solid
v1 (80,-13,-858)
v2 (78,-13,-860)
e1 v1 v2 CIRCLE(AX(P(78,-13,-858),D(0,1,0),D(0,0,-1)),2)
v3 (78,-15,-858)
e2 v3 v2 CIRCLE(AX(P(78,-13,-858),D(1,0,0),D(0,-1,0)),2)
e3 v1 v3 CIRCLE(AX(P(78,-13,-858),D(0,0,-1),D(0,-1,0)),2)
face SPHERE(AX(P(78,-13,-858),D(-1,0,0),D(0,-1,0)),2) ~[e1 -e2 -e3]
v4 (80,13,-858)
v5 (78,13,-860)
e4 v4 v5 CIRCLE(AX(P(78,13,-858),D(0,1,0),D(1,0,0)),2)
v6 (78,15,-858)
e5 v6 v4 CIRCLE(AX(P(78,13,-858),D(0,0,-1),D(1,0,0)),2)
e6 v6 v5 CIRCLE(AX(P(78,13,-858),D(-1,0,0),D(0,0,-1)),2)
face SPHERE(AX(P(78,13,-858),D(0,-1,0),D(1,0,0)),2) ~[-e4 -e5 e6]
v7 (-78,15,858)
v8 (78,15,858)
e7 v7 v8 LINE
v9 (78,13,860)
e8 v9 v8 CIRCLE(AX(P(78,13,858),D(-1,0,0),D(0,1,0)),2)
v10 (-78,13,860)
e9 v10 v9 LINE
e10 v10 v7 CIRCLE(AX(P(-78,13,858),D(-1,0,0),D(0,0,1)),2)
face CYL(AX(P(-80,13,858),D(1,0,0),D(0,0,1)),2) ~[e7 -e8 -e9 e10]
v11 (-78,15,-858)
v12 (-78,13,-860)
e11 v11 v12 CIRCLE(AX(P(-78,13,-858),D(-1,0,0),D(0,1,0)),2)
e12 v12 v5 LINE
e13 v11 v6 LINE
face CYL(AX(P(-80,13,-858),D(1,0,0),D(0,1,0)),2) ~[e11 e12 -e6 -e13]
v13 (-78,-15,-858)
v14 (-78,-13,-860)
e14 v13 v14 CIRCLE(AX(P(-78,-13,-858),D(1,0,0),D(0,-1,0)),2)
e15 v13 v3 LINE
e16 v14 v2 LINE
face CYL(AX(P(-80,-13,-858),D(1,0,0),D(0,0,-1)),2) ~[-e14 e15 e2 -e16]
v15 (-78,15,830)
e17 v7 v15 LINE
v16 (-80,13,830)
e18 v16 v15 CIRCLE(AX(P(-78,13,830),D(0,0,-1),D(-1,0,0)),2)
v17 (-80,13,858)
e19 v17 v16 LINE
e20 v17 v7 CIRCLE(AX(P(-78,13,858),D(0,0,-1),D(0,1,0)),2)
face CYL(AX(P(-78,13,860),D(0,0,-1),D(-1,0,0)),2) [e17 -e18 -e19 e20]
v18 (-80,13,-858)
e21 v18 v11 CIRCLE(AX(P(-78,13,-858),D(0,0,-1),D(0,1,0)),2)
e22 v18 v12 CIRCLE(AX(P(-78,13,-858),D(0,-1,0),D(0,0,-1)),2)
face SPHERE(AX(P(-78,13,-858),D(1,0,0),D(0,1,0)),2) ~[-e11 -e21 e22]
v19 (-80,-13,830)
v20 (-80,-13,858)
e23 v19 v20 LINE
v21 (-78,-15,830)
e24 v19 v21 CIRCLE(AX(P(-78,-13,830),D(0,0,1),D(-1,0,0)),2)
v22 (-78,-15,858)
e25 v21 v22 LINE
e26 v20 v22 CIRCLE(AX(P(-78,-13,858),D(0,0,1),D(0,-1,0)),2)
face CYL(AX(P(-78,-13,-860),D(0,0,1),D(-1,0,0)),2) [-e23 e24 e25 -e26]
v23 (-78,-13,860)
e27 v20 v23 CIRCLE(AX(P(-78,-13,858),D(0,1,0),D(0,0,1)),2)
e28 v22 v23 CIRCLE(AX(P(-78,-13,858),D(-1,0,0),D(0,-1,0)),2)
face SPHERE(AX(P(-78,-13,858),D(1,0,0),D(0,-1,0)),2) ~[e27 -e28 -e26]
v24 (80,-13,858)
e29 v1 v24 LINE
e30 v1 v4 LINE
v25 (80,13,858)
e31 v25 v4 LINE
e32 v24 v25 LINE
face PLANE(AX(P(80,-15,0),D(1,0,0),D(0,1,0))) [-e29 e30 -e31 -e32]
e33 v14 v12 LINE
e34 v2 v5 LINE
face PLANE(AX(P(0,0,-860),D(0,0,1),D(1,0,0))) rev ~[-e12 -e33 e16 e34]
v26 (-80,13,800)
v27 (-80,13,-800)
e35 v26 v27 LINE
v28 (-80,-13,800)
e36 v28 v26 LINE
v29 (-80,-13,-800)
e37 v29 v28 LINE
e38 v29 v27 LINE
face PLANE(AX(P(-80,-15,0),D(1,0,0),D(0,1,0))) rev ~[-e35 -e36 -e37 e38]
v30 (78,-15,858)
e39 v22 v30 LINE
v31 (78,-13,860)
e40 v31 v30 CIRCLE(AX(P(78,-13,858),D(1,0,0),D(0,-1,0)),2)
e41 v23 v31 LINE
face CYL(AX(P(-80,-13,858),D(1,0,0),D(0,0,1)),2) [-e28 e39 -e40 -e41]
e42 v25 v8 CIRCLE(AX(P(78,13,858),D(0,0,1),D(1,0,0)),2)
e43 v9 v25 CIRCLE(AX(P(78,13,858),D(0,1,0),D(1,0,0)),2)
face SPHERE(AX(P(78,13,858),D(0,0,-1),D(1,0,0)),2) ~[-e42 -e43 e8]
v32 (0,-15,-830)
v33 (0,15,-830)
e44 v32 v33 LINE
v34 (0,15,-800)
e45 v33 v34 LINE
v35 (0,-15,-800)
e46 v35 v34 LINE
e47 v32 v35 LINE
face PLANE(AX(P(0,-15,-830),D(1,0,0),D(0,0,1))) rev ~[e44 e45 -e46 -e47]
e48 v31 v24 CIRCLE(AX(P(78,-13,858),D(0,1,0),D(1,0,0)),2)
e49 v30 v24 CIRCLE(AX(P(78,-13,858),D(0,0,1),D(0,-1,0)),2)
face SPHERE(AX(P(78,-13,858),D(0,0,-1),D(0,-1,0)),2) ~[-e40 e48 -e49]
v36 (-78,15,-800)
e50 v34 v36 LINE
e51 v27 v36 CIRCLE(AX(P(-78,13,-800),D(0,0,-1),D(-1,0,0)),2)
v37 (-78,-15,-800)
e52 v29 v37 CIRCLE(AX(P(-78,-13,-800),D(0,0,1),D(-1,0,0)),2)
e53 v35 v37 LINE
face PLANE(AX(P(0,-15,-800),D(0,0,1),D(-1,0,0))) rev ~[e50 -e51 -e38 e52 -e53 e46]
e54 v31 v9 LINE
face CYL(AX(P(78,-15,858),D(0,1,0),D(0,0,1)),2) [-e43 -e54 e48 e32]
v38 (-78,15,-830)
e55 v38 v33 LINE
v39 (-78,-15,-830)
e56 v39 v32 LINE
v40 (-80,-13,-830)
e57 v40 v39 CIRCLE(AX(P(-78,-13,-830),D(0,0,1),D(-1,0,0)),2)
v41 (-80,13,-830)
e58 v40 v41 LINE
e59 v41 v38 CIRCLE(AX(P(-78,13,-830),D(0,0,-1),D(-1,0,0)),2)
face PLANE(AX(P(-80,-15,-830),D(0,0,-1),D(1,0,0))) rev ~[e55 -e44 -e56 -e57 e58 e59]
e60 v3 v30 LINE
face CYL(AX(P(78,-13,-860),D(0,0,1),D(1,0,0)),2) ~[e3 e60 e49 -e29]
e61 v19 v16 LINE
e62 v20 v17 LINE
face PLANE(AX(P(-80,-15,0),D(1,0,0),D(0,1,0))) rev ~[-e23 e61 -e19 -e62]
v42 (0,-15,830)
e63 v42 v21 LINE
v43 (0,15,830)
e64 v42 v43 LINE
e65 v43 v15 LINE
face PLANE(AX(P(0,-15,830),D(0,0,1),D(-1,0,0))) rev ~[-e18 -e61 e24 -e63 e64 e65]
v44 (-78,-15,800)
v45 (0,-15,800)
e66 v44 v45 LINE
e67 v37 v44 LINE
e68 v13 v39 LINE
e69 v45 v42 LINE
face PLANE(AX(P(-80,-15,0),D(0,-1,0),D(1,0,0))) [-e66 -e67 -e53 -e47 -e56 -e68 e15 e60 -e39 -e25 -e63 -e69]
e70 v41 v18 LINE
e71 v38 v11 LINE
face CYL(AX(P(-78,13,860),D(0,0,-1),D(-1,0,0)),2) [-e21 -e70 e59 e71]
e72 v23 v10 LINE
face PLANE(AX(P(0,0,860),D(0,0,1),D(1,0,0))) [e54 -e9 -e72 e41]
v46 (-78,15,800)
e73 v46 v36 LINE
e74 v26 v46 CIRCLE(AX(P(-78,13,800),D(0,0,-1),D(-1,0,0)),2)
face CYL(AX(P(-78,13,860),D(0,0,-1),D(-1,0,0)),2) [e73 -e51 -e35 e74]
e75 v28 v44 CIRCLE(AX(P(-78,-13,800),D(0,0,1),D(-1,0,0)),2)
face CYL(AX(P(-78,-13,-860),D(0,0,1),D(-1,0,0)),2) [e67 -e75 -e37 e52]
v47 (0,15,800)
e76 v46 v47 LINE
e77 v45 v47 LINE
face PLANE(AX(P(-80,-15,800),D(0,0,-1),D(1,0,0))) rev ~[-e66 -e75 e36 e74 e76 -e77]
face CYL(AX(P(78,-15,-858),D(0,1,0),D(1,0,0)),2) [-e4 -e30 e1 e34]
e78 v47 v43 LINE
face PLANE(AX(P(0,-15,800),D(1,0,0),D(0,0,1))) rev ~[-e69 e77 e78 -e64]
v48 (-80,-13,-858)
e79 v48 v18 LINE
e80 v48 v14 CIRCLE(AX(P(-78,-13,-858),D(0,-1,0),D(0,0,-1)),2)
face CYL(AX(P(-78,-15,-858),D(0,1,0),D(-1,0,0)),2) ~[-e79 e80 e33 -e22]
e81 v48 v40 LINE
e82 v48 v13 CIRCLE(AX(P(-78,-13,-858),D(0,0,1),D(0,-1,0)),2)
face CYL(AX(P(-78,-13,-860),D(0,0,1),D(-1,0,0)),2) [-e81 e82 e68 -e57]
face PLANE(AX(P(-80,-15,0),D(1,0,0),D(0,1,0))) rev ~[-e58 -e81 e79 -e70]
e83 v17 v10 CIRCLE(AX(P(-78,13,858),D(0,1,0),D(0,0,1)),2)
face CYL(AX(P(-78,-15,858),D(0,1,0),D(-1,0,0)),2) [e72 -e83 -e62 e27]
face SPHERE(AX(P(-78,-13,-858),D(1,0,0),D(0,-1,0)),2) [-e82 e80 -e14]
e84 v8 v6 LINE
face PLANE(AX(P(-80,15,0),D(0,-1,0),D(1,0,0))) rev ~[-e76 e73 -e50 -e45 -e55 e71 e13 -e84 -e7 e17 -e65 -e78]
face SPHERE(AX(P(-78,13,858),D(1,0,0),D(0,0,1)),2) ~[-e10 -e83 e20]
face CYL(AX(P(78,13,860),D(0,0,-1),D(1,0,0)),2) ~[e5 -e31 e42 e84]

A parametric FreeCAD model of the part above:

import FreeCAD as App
import Part
import Sketcher
Q = App.Units.Quantity


def add_polygon(sketch, points):
    """Adds a closed chain of lines whose ends are joined by coincident constraints."""
    first, n = sketch.GeometryCount, len(points)
    for a, b in zip(points, points[1:] + points[:1]):
        sketch.addGeometry(Part.LineSegment(App.Vector(*a, 0), App.Vector(*b, 0)), False)
    for i in range(n):
        sketch.addConstraint(Sketcher.Constraint("Coincident", first + i, 2, first + (i + 1) % n, 1))

doc = App.newDocument("Part")
body = doc.addObject("PartDesign::Body", "Body")

# Sketch on XY plane
sketch1 = doc.addObject("Sketcher::SketchObject", "Sketch")
body.addObject(sketch1)
sketch1.AttachmentSupport = (doc.XY_Plane, [""])
sketch1.MapMode = "FlatFace"
add_polygon(sketch1, [(-80, 15), (-80, -15), (80, -15), (80, 15)])  # lines 0-3
sketch1.addConstraint([
    Sketcher.Constraint("Vertical", 0),
    Sketcher.Constraint("Horizontal", 1),
    Sketcher.Constraint("Vertical", 2),
    Sketcher.Constraint("Horizontal", 3),
    Sketcher.Constraint("Symmetric", 0, 2, 2, 2, -1, 1),
    Sketcher.Constraint("DistanceX", 1, 1, 1, 2, Q("160 mm")),
    Sketcher.Constraint("DistanceY", 0, 2, 0, 1, Q("30 mm")),
])
pad1 = doc.addObject("PartDesign::Pad", "Pad")
body.addObject(pad1)
pad1.Profile = sketch1
pad1.Length = 1720
pad1.Midplane = True
doc.recompute()

fillet = doc.addObject("PartDesign::Fillet", "Fillet")
body.addObject(fillet)
fillet.Base = (pad1, ["Edge1"])
fillet.UseAllEdges = True
fillet.Radius = 2

# Sketch on XZ plane
sketch2 = doc.addObject("Sketcher::SketchObject", "Sketch001")
body.addObject(sketch2)
sketch2.AttachmentSupport = (doc.XZ_Plane, [""])
sketch2.MapMode = "FlatFace"
sketch2.AttachmentOffset = App.Placement(App.Vector(0, 0, 15), App.Rotation())
add_polygon(sketch2, [(-80, -800), (-80, -830), (0, -830), (0, -800)])  # lines 0-3
add_polygon(sketch2, [(-80, 830), (-80, 800), (0, 800), (0, 830)])  # lines 4-7
sketch2.addConstraint([
    Sketcher.Constraint("Vertical", 0),
    Sketcher.Constraint("Horizontal", 1),
    Sketcher.Constraint("Vertical", 2),
    Sketcher.Constraint("Horizontal", 3),
    Sketcher.Constraint("Vertical", 4),
    Sketcher.Constraint("Horizontal", 5),
    Sketcher.Constraint("Vertical", 6),
    Sketcher.Constraint("Horizontal", 7),
    Sketcher.Constraint("Symmetric", 2, 2, 5, 2, -1, 1),
    Sketcher.Constraint("Symmetric", 1, 2, 6, 2, -1),
    Sketcher.Constraint("Vertical", 3, 2, 4, 2),
    Sketcher.Constraint("DistanceX", 1, 1, 1, 2, Q("80 mm")),
    Sketcher.Constraint("DistanceY", 0, 2, 0, 1, Q("30 mm")),
    Sketcher.Constraint("DistanceY", 0, 2, -1, 1, Q("830 mm")),
])
pocket1 = doc.addObject("PartDesign::Pocket", "Pocket")
body.addObject(pocket1)
pocket1.Profile = sketch2
pocket1.Type = "ThroughAll"

doc.recompute()
